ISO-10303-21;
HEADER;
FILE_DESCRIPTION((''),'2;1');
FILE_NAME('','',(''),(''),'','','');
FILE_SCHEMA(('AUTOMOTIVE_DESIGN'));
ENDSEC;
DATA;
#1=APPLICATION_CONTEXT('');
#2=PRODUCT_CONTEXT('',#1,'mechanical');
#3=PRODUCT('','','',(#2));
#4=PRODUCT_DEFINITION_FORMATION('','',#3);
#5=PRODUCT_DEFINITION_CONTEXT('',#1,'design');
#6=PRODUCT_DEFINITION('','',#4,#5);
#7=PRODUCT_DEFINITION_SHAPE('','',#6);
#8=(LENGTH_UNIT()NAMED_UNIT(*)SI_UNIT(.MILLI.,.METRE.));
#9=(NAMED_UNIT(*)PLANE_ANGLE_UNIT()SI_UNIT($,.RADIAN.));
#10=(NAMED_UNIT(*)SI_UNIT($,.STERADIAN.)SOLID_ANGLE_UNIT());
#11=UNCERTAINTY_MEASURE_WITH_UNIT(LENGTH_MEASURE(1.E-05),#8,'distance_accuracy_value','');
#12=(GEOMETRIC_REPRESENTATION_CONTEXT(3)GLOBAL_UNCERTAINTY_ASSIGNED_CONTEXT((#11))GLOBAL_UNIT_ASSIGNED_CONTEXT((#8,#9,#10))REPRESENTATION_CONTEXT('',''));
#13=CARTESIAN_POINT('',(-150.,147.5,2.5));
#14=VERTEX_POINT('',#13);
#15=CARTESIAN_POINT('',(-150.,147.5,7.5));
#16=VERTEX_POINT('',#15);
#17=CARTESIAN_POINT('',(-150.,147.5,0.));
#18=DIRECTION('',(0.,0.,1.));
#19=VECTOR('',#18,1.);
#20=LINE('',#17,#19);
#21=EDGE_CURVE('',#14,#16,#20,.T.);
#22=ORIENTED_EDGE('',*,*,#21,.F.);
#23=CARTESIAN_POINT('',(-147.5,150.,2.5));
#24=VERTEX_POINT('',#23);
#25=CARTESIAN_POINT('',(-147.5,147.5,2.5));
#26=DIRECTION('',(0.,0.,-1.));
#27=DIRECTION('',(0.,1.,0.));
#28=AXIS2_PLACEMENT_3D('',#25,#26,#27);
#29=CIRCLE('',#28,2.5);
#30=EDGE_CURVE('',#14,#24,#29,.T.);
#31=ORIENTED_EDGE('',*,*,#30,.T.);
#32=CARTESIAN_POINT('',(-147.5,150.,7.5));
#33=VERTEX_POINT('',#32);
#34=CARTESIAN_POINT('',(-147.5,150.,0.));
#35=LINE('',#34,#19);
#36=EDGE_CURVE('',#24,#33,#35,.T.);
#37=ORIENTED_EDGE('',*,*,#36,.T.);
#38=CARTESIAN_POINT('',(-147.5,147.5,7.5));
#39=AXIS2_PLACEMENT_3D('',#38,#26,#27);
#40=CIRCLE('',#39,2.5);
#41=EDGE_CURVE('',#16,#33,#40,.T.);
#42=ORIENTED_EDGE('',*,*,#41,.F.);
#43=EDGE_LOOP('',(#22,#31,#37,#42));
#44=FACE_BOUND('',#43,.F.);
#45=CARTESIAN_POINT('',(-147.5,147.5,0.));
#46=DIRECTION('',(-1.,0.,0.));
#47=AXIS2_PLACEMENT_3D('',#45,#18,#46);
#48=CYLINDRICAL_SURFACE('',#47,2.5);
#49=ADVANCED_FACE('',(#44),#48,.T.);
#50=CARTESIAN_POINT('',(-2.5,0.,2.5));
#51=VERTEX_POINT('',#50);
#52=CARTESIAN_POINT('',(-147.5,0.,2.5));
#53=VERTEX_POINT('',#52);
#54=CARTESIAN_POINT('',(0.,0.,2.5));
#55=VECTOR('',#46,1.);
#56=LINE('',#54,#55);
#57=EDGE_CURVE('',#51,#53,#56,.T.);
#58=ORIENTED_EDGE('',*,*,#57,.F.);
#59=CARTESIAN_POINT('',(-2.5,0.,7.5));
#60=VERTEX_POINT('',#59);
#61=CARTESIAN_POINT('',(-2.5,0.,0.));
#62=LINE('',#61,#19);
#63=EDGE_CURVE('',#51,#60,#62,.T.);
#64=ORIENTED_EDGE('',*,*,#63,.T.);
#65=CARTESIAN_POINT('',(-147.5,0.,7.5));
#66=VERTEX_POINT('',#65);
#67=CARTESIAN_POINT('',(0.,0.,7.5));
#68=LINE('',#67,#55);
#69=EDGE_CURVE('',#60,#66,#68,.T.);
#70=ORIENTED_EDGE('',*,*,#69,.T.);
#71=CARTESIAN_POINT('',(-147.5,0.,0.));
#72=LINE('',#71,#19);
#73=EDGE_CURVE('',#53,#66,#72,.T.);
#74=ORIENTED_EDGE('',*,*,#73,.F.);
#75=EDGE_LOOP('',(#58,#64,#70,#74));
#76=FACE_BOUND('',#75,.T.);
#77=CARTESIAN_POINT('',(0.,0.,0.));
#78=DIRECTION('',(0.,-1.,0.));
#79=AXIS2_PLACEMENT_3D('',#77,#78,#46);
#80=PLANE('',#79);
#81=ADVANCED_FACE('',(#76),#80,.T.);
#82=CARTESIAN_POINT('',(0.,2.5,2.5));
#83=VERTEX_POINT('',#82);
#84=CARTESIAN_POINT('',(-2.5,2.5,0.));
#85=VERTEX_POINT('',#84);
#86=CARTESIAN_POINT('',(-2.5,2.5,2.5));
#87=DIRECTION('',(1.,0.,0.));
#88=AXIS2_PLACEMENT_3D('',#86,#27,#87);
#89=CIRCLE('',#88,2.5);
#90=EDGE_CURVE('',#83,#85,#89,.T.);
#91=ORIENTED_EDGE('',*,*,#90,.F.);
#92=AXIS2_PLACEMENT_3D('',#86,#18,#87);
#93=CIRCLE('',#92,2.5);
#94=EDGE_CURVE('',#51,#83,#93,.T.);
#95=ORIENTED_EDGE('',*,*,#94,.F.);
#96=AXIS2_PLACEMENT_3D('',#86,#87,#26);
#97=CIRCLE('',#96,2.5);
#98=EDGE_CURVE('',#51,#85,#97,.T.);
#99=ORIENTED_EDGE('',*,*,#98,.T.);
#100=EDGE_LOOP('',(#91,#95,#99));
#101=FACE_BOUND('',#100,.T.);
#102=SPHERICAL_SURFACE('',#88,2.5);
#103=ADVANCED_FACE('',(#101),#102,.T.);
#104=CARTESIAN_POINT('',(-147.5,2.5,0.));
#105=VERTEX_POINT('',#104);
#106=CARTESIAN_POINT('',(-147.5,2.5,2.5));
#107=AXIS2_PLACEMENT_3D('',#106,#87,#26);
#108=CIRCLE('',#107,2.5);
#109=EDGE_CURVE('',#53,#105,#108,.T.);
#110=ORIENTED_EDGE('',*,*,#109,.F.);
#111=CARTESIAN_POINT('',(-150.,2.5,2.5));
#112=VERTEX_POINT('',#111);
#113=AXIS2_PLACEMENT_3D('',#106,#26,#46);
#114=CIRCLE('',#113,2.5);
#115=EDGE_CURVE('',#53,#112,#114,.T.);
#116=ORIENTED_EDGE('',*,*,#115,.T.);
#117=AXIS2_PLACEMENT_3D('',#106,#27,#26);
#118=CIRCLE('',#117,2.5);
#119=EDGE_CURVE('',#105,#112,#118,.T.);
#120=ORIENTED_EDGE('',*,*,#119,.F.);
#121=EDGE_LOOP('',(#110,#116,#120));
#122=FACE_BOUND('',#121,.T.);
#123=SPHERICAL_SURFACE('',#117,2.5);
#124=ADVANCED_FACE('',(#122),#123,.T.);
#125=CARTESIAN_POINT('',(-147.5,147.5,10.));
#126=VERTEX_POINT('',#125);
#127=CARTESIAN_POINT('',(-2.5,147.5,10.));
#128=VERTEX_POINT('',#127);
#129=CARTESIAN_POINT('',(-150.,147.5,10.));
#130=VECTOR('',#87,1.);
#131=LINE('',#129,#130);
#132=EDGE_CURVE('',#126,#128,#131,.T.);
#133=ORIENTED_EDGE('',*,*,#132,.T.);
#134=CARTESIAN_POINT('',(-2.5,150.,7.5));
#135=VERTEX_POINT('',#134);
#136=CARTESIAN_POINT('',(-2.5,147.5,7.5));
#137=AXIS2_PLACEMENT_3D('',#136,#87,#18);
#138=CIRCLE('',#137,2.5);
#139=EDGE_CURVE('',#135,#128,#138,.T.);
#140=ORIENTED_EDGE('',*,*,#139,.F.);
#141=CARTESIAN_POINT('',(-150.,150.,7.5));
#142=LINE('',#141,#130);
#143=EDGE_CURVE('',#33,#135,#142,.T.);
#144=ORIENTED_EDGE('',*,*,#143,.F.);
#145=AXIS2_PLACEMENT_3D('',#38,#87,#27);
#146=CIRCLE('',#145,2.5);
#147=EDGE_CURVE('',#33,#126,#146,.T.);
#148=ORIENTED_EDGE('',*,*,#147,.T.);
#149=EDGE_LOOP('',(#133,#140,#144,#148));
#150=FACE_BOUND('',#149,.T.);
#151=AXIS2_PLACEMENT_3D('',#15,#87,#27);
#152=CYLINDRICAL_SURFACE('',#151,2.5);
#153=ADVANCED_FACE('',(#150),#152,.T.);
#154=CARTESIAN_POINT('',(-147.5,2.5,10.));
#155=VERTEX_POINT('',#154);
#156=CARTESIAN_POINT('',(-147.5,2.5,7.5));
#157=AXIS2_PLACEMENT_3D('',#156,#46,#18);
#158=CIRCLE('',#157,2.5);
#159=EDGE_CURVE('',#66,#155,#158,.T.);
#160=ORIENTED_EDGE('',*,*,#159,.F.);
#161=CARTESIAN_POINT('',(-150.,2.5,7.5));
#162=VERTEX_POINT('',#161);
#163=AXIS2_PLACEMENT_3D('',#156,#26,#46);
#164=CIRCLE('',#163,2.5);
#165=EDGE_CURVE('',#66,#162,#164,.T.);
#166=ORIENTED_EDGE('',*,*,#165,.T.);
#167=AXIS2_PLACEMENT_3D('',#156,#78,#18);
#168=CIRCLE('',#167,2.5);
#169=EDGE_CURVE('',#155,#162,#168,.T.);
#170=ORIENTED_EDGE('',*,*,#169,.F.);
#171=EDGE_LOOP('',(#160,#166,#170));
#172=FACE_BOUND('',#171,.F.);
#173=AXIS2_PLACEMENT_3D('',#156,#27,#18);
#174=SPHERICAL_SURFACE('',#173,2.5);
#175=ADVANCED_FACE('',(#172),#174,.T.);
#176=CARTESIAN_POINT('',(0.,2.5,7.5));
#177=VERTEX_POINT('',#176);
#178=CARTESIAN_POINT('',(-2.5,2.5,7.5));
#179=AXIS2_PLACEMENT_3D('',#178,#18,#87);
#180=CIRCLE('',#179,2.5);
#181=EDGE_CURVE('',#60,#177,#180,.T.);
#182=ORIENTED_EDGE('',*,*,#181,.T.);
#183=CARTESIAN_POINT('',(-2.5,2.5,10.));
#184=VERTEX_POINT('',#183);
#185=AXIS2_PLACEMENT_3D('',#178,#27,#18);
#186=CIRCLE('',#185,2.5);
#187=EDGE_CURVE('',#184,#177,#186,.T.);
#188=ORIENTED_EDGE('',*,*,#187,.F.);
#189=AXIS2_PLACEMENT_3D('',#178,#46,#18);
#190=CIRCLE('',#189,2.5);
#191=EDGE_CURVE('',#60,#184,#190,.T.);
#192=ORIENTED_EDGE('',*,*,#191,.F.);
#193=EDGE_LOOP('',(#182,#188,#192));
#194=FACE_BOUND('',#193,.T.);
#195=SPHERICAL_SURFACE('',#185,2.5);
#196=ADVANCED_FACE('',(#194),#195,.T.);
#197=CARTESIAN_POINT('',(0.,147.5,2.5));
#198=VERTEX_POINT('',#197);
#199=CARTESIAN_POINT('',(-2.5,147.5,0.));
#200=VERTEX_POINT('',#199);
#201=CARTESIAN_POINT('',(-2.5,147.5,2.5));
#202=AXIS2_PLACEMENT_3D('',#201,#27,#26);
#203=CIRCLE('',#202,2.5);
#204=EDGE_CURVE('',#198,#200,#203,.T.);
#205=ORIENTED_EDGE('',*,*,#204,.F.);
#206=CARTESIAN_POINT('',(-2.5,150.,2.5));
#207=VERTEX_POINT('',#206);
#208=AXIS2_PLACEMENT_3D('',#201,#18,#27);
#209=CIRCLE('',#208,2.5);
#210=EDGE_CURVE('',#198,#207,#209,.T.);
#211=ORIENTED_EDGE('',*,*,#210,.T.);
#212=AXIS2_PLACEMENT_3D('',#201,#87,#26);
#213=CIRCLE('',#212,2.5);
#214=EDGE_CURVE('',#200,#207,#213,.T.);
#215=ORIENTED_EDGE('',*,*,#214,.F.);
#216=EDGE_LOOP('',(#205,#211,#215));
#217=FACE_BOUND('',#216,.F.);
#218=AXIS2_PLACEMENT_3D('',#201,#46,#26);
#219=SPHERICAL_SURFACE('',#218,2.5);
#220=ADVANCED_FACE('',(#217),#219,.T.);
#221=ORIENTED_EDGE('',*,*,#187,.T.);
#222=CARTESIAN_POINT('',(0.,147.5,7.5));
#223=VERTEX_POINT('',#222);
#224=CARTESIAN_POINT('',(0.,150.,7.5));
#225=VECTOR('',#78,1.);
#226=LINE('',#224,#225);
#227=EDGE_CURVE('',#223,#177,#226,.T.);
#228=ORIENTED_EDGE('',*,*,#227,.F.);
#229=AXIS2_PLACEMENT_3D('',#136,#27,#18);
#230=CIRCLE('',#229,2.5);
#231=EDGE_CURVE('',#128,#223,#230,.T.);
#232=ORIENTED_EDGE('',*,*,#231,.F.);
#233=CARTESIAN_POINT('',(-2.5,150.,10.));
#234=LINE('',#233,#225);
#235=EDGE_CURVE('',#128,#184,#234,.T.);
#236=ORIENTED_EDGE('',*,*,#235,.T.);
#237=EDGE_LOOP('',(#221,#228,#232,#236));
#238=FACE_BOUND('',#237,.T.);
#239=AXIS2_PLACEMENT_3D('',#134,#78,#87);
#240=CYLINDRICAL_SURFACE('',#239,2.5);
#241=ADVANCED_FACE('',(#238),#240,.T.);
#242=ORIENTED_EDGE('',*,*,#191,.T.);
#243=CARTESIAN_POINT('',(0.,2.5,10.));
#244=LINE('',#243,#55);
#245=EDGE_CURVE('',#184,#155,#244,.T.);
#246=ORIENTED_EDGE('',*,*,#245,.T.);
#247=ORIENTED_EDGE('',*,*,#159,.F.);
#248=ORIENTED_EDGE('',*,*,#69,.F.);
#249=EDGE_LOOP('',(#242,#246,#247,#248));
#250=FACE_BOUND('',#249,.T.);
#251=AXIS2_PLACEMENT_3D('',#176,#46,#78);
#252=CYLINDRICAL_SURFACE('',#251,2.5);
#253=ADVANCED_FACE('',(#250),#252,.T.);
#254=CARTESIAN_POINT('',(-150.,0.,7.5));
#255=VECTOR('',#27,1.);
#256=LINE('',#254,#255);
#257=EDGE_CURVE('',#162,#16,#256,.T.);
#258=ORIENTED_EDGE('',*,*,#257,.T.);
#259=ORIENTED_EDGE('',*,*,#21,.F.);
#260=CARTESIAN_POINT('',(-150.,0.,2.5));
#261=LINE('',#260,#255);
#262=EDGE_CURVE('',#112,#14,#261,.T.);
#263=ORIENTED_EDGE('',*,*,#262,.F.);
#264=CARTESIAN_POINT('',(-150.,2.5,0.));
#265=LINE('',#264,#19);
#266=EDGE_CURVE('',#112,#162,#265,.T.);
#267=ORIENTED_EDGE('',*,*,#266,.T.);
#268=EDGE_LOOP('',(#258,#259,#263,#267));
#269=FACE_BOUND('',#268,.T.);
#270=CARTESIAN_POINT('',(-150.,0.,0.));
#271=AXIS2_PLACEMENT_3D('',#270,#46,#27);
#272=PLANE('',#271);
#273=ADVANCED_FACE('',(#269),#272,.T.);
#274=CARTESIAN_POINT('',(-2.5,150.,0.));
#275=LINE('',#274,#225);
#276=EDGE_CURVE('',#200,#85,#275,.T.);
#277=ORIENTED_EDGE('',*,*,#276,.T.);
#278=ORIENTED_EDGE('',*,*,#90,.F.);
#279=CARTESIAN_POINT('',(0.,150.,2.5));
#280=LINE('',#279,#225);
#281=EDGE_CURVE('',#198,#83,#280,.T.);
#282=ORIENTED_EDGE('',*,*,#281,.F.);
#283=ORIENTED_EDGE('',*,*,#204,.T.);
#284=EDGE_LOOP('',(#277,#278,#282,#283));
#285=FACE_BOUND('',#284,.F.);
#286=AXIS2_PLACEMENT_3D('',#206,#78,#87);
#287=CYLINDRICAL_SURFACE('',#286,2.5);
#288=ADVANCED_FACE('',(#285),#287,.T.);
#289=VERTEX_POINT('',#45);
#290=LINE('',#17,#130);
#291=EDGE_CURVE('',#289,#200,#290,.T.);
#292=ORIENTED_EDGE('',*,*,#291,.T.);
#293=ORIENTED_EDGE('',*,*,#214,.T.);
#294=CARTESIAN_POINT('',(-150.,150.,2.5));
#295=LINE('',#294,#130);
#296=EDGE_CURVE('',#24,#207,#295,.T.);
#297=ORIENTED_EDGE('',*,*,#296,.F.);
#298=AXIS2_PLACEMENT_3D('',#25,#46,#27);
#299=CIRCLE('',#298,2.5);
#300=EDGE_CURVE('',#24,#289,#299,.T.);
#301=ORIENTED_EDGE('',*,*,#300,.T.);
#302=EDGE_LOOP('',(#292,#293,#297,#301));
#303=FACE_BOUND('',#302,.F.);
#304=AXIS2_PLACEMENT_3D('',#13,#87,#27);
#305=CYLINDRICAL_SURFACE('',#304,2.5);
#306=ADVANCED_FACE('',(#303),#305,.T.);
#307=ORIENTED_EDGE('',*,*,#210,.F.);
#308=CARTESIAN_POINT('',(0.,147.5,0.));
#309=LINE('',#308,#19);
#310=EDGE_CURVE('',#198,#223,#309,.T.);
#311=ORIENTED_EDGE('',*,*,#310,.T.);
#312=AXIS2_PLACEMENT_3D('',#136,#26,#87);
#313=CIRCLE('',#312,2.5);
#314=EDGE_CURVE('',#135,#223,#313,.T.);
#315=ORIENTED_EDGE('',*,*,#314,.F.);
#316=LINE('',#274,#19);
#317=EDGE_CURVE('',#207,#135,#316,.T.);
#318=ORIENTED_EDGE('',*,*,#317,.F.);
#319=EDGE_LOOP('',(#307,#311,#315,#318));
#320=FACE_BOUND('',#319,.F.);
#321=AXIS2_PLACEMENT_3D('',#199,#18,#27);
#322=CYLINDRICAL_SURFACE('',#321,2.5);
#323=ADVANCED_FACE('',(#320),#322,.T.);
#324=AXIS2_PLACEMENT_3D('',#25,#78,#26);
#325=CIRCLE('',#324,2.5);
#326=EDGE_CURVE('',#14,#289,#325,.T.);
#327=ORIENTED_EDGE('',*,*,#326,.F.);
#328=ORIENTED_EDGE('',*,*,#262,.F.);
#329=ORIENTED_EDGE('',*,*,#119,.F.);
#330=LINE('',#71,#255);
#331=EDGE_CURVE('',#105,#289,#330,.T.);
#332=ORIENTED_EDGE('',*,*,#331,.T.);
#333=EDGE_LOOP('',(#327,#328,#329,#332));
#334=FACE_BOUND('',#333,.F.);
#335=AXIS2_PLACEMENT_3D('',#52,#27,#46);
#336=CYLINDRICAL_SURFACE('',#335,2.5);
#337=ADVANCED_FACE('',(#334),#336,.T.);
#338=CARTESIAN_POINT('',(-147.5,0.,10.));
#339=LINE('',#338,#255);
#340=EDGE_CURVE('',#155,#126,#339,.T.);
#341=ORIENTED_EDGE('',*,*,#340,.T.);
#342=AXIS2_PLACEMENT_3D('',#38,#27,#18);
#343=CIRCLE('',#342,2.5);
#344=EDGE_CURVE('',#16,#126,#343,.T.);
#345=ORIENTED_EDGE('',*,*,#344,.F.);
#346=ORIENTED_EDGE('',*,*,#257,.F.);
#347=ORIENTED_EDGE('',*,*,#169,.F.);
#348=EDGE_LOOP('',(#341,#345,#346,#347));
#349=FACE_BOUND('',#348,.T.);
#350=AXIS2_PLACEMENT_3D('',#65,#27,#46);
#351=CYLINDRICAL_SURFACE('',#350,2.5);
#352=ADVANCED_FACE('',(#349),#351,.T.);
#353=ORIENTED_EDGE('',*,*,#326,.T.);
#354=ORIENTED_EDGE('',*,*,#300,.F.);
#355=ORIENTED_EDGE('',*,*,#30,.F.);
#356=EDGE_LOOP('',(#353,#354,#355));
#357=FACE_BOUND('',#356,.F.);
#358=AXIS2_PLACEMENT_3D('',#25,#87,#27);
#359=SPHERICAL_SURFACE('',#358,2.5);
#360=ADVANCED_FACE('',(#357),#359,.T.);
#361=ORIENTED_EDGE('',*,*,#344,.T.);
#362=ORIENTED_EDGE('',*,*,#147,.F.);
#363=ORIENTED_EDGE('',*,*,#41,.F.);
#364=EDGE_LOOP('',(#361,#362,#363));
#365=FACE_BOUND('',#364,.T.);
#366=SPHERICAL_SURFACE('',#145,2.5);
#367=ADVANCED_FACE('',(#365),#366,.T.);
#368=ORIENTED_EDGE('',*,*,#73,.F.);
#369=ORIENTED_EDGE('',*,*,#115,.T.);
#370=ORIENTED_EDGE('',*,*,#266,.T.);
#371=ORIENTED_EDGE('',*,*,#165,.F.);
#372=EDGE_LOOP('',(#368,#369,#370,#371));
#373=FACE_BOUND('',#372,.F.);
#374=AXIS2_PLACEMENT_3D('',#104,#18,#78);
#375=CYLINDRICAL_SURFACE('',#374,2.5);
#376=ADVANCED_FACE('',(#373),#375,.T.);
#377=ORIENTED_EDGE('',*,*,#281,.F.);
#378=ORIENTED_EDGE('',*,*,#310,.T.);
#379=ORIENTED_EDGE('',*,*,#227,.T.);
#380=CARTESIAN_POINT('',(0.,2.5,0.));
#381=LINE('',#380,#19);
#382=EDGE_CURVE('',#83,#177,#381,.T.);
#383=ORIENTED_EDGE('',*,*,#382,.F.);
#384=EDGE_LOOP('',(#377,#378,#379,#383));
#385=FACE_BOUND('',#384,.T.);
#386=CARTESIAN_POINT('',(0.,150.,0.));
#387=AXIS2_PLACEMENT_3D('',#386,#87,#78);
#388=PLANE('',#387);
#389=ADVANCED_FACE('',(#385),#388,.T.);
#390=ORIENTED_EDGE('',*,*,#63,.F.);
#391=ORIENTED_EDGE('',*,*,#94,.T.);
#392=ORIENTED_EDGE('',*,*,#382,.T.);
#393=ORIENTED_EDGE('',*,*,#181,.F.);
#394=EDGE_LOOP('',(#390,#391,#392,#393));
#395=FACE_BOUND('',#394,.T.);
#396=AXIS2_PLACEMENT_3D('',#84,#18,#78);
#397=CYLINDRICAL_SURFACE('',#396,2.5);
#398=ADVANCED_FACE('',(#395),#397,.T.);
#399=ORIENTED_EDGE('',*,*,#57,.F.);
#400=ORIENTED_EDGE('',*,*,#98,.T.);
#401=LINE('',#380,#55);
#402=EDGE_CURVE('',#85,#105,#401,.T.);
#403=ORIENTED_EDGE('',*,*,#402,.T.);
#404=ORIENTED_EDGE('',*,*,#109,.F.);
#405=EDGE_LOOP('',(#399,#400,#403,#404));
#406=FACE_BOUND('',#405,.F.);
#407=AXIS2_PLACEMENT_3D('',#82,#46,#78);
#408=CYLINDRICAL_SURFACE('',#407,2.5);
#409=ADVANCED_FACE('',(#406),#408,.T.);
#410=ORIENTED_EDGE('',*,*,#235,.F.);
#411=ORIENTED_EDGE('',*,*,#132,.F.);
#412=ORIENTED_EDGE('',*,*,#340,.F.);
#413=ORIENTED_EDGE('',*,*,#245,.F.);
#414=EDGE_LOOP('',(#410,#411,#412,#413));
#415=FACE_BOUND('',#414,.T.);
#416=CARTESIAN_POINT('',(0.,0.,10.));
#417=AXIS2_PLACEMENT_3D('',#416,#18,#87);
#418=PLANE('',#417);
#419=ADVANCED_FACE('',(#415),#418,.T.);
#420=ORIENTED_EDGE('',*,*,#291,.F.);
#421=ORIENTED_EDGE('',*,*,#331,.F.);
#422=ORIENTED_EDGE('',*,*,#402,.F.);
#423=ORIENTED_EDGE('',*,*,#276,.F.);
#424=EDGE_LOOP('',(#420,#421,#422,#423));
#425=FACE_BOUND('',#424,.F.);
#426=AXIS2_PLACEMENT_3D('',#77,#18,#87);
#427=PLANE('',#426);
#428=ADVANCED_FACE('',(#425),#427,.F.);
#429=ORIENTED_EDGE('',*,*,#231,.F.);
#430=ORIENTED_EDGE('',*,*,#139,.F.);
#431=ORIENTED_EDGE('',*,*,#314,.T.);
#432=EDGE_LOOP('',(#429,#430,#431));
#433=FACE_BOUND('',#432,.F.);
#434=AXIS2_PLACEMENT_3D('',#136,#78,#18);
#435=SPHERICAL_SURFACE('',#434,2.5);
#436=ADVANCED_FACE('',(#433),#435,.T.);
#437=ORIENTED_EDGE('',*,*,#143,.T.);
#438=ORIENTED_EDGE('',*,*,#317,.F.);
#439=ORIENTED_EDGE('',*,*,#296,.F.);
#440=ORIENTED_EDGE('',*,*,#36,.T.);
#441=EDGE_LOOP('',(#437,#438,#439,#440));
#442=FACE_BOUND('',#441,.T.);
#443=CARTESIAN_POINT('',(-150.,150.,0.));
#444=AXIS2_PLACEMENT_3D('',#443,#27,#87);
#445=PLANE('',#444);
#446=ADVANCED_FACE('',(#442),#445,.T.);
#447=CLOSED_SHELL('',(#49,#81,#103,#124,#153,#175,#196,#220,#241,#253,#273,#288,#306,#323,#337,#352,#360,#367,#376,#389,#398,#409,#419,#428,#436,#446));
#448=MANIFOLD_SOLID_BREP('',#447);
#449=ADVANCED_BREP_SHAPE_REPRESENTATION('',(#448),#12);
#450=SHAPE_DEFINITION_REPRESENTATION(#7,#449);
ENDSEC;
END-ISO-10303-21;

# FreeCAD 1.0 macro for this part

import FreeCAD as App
import Part
import Sketcher
from FreeCAD import Vector
Q = App.Units.Quantity


def add_polygon(sketch, points):
    """Adds a closed chain of lines whose ends are joined by coincident constraints."""
    first, n = sketch.GeometryCount, len(points)
    for a, b in zip(points, points[1:] + points[:1]):
        sketch.addGeometry(Part.LineSegment(App.Vector(*a, 0), App.Vector(*b, 0)), False)
    for i in range(n):
        sketch.addConstraint(Sketcher.Constraint("Coincident", first + i, 2, first + (i + 1) % n, 1))

doc = App.newDocument("Part")
params = doc.addObject("Spreadsheet::Sheet", "Params")
for row, (alias, value) in enumerate([
    ("sketch1_width", "150 mm"),
    ("pad1_length", "10 mm"),
    ("fillet_radius", "2.5 mm"),
], start=1):
    params.set(f"A{row}", alias)
    params.set(f"B{row}", "=" + value)
    params.setAlias(f"B{row}", alias)

body = doc.addObject("PartDesign::Body", "Body")

# Sketch on XY plane
sketch1 = body.newObject("Sketcher::SketchObject", "Sketch")
sketch1.AttachmentSupport = (doc.getObject("XY_Plane"), [""])
sketch1.MapMode = "FlatFace"
add_polygon(sketch1, [(-150, 0), (0, 0), (0, 150), (-150, 150)])  # lines 0-3
sketch1.addConstraint(Sketcher.Constraint("Horizontal", 0))
sketch1.addConstraint(Sketcher.Constraint("Vertical", 1))
sketch1.addConstraint(Sketcher.Constraint("Horizontal", 2))
sketch1.addConstraint(Sketcher.Constraint("Vertical", 3))
sketch1.addConstraint(Sketcher.Constraint("Coincident", 0, 2, -1, 1))
sketch1.addConstraint(Sketcher.Constraint("Equal", 2, 1))
sketch1.addConstraint(Sketcher.Constraint("DistanceX", 0, 1, 0, 2, Q("150 mm")))
sketch1.setExpression("Constraints[10]", "Params.sketch1_width")
pad1 = body.newObject("PartDesign::Pad", "Pad")
pad1.Profile = sketch1
pad1.setExpression("Length", "Params.pad1_length")
doc.recompute()

fillet = body.newObject("PartDesign::Fillet", "Fillet")
fillet.Base = (pad1, ["Edge1"])
fillet.UseAllEdges = True
fillet.setExpression("Radius", "Params.fillet_radius")

doc.recompute()
